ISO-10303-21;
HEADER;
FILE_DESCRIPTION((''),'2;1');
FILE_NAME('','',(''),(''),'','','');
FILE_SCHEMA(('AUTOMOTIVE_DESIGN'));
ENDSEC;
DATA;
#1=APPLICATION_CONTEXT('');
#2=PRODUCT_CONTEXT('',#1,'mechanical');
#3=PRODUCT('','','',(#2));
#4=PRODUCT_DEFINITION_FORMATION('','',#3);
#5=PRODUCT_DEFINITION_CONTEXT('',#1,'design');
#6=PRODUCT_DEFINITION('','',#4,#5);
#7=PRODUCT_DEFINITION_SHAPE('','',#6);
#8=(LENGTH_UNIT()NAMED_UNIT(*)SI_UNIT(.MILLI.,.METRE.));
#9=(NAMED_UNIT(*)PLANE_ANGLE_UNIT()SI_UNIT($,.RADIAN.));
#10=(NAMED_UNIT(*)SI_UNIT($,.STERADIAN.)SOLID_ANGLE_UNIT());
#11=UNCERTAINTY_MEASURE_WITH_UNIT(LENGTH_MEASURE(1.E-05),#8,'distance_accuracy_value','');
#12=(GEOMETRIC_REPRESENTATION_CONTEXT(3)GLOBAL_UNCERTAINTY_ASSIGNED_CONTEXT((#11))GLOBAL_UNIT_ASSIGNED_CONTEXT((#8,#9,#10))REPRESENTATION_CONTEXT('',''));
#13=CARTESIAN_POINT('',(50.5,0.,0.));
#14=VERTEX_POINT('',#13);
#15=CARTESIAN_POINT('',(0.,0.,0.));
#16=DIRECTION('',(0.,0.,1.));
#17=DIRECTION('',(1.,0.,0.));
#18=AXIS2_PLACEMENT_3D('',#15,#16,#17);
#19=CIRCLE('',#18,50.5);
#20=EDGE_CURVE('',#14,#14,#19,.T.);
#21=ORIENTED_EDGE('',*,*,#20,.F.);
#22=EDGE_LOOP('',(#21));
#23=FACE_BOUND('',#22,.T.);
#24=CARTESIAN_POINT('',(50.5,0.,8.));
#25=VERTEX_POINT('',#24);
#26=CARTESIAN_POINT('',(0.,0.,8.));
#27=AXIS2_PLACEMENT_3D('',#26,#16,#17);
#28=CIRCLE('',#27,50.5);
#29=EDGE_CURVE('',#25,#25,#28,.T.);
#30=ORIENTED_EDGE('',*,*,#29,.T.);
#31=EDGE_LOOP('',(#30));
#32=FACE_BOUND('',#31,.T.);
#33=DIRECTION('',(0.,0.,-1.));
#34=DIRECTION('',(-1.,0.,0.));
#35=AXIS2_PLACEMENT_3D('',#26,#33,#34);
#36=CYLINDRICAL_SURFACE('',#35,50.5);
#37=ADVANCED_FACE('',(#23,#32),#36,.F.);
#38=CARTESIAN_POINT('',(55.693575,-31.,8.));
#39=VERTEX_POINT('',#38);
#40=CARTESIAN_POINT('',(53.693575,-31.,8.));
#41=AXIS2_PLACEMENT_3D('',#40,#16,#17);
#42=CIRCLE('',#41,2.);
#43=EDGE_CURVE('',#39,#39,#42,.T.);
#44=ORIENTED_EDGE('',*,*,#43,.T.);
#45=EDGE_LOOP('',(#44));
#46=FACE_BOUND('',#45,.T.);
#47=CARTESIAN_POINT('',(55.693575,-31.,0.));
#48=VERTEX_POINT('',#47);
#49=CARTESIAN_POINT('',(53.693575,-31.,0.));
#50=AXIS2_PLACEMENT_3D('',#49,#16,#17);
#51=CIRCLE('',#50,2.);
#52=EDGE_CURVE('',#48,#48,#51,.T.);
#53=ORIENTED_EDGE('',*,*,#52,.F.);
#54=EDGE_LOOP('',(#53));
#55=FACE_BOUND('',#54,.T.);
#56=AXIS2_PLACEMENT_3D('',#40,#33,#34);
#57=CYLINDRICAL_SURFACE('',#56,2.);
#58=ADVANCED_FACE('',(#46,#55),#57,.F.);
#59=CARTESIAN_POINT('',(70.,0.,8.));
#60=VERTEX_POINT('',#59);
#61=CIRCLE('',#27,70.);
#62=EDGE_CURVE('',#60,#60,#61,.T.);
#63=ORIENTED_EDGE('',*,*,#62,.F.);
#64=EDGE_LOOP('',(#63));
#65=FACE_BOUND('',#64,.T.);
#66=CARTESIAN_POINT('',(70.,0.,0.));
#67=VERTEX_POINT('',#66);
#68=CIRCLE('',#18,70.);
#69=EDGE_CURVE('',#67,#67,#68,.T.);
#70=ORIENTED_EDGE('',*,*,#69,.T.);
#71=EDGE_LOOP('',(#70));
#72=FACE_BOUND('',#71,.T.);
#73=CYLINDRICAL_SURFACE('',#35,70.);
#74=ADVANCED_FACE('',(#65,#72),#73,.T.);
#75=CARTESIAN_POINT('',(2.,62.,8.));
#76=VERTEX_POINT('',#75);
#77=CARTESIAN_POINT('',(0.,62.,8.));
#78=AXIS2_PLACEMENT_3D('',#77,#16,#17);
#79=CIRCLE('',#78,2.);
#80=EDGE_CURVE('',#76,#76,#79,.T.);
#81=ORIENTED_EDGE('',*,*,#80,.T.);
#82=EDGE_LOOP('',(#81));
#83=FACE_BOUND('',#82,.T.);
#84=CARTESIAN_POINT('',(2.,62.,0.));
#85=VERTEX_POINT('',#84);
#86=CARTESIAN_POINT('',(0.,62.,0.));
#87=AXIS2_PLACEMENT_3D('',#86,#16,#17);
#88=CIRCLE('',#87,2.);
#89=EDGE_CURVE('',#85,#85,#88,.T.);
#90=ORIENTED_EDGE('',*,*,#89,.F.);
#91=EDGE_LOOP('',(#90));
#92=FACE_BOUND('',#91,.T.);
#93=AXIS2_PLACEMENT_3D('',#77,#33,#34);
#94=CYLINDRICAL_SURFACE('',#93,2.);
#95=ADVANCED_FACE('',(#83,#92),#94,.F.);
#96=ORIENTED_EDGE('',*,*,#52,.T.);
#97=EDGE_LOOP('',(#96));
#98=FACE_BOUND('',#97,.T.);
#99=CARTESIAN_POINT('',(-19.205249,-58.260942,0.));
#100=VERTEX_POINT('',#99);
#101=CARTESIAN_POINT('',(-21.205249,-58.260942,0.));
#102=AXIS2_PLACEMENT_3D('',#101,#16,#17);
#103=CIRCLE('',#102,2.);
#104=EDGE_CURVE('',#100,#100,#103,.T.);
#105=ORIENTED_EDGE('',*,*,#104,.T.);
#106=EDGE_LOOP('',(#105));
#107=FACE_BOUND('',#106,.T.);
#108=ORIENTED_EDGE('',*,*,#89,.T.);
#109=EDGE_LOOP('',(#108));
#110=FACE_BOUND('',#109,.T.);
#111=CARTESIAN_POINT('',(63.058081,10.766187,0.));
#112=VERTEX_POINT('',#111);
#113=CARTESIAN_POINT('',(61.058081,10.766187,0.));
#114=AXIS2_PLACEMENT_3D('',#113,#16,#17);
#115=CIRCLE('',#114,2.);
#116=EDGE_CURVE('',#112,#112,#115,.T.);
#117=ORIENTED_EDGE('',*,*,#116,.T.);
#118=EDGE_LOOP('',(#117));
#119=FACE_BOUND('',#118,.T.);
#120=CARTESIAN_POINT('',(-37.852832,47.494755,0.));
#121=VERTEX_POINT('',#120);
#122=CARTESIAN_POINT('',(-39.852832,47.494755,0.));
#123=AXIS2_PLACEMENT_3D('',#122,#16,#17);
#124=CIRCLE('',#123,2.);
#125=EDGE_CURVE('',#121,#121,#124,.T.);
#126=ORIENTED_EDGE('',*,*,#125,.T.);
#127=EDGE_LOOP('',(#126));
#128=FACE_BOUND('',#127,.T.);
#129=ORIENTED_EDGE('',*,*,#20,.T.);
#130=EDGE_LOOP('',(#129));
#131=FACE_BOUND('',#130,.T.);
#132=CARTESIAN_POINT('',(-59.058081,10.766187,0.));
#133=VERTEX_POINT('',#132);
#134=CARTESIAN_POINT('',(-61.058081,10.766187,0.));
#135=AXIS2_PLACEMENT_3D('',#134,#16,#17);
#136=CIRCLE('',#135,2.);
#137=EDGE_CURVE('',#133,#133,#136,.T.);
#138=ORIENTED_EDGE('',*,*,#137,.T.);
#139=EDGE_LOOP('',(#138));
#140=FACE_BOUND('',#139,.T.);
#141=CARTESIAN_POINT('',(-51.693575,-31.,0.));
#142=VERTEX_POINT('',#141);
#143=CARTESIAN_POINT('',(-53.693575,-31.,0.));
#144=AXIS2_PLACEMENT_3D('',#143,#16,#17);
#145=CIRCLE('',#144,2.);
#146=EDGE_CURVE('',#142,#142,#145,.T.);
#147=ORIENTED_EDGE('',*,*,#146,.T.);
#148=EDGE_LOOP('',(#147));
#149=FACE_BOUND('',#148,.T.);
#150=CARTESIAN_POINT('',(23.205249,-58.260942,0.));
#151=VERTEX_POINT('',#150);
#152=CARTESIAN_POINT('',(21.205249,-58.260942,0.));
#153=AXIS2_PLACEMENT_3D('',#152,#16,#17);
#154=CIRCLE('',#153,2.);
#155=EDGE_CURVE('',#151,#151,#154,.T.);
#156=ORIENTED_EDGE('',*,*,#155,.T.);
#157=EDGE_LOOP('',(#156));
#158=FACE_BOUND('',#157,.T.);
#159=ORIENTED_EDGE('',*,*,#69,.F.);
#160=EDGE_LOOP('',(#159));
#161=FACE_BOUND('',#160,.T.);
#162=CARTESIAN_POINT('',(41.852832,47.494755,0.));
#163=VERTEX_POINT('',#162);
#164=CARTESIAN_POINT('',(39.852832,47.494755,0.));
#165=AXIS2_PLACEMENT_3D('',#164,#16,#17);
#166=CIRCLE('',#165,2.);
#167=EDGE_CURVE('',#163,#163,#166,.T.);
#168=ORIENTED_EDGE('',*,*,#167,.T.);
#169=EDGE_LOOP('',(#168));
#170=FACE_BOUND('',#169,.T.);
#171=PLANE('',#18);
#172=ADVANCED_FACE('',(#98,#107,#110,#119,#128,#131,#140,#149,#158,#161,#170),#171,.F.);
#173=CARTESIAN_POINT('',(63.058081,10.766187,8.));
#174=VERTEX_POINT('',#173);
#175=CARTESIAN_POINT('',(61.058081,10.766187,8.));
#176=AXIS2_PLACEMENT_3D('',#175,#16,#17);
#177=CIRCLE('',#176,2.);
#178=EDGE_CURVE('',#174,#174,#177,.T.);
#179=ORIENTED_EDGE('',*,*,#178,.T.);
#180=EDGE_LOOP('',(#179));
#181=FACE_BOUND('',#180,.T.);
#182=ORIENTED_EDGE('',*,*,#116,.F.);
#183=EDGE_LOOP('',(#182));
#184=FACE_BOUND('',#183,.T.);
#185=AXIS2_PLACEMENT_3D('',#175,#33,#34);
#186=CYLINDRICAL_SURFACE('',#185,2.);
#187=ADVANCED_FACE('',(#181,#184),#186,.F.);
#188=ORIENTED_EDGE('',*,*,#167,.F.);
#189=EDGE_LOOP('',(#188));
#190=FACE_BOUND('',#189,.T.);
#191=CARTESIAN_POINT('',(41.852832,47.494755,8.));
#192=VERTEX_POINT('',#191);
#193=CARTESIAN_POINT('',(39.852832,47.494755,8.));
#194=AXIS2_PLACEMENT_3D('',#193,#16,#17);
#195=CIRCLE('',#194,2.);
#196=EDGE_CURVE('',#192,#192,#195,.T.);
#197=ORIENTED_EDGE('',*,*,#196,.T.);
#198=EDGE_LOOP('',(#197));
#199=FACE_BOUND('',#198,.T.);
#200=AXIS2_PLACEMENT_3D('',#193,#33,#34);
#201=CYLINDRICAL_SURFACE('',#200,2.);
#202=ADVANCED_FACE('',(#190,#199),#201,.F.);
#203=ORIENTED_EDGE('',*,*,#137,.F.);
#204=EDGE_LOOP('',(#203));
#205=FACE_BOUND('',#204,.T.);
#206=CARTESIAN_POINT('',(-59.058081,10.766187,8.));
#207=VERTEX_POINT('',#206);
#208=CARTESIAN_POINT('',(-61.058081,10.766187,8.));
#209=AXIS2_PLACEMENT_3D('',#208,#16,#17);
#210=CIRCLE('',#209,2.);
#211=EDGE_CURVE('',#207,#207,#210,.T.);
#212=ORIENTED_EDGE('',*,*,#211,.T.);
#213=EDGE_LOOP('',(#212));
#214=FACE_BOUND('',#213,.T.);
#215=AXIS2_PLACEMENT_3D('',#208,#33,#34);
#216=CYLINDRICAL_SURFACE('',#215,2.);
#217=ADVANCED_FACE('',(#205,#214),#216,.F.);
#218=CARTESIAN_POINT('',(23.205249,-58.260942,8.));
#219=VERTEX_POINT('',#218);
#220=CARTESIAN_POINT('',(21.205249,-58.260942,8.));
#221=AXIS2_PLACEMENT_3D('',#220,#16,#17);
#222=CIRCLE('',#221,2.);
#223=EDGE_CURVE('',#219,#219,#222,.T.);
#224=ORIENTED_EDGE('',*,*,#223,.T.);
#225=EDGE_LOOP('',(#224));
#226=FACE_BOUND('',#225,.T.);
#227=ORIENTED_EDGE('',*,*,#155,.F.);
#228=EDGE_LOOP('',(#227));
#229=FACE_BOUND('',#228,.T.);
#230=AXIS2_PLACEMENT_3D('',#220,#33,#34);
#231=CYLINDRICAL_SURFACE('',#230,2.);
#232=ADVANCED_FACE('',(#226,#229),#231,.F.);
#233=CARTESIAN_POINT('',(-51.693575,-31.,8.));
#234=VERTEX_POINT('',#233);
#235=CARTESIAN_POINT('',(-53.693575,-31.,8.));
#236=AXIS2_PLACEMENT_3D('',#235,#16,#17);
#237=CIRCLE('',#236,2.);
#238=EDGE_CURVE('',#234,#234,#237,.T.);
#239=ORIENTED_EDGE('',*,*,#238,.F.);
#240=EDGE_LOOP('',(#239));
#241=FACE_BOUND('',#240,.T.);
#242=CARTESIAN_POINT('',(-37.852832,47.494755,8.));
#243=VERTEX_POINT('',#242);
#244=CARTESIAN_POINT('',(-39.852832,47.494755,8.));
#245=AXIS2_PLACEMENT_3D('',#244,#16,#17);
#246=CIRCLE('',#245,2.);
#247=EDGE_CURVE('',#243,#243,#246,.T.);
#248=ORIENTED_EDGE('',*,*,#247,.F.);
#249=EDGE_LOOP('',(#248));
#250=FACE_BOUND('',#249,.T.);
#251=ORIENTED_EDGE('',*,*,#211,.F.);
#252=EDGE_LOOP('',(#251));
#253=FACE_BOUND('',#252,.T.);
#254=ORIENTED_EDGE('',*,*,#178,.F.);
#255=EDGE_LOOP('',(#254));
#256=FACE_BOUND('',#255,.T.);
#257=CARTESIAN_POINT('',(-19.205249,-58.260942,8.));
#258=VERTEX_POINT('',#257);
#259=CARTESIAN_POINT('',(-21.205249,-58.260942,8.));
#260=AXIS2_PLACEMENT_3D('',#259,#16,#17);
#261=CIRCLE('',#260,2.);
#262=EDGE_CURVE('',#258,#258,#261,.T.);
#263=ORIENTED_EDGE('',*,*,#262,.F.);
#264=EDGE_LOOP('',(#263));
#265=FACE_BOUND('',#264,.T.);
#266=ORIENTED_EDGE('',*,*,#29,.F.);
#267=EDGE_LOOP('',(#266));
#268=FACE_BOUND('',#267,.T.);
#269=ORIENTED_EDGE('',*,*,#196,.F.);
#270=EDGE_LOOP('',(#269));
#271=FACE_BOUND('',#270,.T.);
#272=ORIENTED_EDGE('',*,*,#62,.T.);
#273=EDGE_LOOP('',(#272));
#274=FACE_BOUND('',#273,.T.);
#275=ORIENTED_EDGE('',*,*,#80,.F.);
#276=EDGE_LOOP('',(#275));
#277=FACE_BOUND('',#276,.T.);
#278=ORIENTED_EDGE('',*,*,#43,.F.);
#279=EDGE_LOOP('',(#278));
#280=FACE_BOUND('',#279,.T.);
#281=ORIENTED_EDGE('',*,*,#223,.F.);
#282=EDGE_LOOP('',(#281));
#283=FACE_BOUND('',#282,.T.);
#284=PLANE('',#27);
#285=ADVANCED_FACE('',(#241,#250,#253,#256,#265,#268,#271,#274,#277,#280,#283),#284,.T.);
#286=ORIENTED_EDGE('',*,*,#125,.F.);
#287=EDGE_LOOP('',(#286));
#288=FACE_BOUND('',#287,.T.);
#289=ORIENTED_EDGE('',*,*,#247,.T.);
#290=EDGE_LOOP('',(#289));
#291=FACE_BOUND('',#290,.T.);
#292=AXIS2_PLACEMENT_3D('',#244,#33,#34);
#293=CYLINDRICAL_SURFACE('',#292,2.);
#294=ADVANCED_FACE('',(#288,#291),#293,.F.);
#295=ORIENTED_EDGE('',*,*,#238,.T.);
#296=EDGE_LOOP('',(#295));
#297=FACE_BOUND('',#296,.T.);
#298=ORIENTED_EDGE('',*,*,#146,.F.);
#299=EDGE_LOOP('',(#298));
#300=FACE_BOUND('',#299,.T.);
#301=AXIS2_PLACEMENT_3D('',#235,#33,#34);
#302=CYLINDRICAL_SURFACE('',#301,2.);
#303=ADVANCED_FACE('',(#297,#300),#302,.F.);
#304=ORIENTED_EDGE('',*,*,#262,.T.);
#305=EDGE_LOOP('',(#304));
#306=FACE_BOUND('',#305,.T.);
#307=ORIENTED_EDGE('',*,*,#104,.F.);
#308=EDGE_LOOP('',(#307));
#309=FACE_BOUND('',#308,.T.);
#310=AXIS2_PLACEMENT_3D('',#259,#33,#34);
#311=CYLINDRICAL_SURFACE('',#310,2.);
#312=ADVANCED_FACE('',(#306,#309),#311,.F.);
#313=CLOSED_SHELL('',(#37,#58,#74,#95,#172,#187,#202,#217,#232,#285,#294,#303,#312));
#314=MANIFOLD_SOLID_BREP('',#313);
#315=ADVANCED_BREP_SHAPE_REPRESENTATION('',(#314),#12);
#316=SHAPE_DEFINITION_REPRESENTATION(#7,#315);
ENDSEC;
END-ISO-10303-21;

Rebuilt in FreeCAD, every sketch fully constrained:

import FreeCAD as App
import Part
import Sketcher

V = App.Vector

doc = App.newDocument("Part")
params = doc.addObject("Spreadsheet::Sheet", "Params")
for row, (alias, value) in enumerate([
    ("sketch1_diameter", "140 mm"),
    ("sketch1_diameter2", "4 mm"),
    ("sketch1_diameter3", "101 mm"),
    ("pad1_length", "8 mm"),
], start=1):
    params.set(f"A{row}", alias)
    params.set(f"B{row}", "=" + value)
    params.setAlias(f"B{row}", alias)

body = doc.addObject("PartDesign::Body", "Body")

sketch1 = body.newObject("Sketcher::SketchObject", "Sketch")
sketch1.AttachmentSupport = (doc.getObject("XY_Plane"), [""])
sketch1.MapMode = "FlatFace"
sketch1.addGeometry([
    Part.Circle(V(0, 0, 0), V(0, 0, 1), 70),
    Part.Circle(V(-53.7, -31, 0), V(0, 0, 1), 2),
    Part.Circle(V(-21.2, -58.3, 0), V(0, 0, 1), 2),
    Part.Circle(V(21.2, -58.3, 0), V(0, 0, 1), 2),
    Part.Circle(V(53.7, -31, 0), V(0, 0, 1), 2),
    Part.Circle(V(0, 0, 0), V(0, 0, 1), 50.5),
    Part.Circle(V(-61.1, 10.8, 0), V(0, 0, 1), 2),
    Part.Circle(V(-39.9, 47.5, 0), V(0, 0, 1), 2),
    Part.Circle(V(61.1, 10.8, 0), V(0, 0, 1), 2),
    Part.Circle(V(0, 62, 0), V(0, 0, 1), 2),
    Part.Circle(V(39.9, 47.5, 0), V(0, 0, 1), 2),
], False)
sketch1.addConstraint([
    Sketcher.Constraint("Coincident", 0, 3, -1, 1),
    Sketcher.Constraint("Coincident", 5, 3, -1, 1),
    Sketcher.Constraint("Equal", 1, 2),
    Sketcher.Constraint("Equal", 2, 3),
    Sketcher.Constraint("Equal", 3, 4),
    Sketcher.Constraint("Equal", 4, 6),
    Sketcher.Constraint("Equal", 6, 7),
    Sketcher.Constraint("Equal", 7, 8),
    Sketcher.Constraint("Equal", 8, 9),
    Sketcher.Constraint("Equal", 9, 10),
    Sketcher.Constraint("Symmetric", 2, 3, 3, 3, -2),
    Sketcher.Constraint("Symmetric", 1, 3, 4, 3, -2),
    Sketcher.Constraint("Symmetric", 6, 3, 8, 3, -2),
    Sketcher.Constraint("Symmetric", 7, 3, 10, 3, -2),
    Sketcher.Constraint("PointOnObject", 9, 3, -2),
    Sketcher.Constraint("Diameter", 0, 140.0),
    Sketcher.Constraint("Diameter", 1, 4.0),
    Sketcher.Constraint("Diameter", 5, 101.0),
    Sketcher.Constraint("DistanceY", 1, 3, -1, 1, 31.0),
    Sketcher.Constraint("DistanceY", -1, 1, 9, 3, 62.0),
    Sketcher.Constraint("DistanceX", 2, 3, -1, 1, 21.205249),
    Sketcher.Constraint("DistanceX", 6, 3, -1, 1, 61.058081),
    Sketcher.Constraint("DistanceX", 7, 3, -1, 1, 39.852832),
    Sketcher.Constraint("DistanceX", 1, 3, 4, 3, 107.38715),
    Sketcher.Constraint("DistanceY", 2, 3, 6, 3, 69.02713),
    Sketcher.Constraint("DistanceY", 6, 3, 7, 3, 36.728568),
    Sketcher.Constraint("DistanceY", 2, 3, -1, 1, 58.260942),
])
sketch1.setExpression("Constraints[15]", "Params.sketch1_diameter")
sketch1.setExpression("Constraints[16]", "Params.sketch1_diameter2")
sketch1.setExpression("Constraints[17]", "Params.sketch1_diameter3")
pad1 = body.newObject("PartDesign::Pad", "Pad")
pad1.Profile = sketch1
pad1.setExpression("Length", "Params.pad1_length")

doc.recompute()
